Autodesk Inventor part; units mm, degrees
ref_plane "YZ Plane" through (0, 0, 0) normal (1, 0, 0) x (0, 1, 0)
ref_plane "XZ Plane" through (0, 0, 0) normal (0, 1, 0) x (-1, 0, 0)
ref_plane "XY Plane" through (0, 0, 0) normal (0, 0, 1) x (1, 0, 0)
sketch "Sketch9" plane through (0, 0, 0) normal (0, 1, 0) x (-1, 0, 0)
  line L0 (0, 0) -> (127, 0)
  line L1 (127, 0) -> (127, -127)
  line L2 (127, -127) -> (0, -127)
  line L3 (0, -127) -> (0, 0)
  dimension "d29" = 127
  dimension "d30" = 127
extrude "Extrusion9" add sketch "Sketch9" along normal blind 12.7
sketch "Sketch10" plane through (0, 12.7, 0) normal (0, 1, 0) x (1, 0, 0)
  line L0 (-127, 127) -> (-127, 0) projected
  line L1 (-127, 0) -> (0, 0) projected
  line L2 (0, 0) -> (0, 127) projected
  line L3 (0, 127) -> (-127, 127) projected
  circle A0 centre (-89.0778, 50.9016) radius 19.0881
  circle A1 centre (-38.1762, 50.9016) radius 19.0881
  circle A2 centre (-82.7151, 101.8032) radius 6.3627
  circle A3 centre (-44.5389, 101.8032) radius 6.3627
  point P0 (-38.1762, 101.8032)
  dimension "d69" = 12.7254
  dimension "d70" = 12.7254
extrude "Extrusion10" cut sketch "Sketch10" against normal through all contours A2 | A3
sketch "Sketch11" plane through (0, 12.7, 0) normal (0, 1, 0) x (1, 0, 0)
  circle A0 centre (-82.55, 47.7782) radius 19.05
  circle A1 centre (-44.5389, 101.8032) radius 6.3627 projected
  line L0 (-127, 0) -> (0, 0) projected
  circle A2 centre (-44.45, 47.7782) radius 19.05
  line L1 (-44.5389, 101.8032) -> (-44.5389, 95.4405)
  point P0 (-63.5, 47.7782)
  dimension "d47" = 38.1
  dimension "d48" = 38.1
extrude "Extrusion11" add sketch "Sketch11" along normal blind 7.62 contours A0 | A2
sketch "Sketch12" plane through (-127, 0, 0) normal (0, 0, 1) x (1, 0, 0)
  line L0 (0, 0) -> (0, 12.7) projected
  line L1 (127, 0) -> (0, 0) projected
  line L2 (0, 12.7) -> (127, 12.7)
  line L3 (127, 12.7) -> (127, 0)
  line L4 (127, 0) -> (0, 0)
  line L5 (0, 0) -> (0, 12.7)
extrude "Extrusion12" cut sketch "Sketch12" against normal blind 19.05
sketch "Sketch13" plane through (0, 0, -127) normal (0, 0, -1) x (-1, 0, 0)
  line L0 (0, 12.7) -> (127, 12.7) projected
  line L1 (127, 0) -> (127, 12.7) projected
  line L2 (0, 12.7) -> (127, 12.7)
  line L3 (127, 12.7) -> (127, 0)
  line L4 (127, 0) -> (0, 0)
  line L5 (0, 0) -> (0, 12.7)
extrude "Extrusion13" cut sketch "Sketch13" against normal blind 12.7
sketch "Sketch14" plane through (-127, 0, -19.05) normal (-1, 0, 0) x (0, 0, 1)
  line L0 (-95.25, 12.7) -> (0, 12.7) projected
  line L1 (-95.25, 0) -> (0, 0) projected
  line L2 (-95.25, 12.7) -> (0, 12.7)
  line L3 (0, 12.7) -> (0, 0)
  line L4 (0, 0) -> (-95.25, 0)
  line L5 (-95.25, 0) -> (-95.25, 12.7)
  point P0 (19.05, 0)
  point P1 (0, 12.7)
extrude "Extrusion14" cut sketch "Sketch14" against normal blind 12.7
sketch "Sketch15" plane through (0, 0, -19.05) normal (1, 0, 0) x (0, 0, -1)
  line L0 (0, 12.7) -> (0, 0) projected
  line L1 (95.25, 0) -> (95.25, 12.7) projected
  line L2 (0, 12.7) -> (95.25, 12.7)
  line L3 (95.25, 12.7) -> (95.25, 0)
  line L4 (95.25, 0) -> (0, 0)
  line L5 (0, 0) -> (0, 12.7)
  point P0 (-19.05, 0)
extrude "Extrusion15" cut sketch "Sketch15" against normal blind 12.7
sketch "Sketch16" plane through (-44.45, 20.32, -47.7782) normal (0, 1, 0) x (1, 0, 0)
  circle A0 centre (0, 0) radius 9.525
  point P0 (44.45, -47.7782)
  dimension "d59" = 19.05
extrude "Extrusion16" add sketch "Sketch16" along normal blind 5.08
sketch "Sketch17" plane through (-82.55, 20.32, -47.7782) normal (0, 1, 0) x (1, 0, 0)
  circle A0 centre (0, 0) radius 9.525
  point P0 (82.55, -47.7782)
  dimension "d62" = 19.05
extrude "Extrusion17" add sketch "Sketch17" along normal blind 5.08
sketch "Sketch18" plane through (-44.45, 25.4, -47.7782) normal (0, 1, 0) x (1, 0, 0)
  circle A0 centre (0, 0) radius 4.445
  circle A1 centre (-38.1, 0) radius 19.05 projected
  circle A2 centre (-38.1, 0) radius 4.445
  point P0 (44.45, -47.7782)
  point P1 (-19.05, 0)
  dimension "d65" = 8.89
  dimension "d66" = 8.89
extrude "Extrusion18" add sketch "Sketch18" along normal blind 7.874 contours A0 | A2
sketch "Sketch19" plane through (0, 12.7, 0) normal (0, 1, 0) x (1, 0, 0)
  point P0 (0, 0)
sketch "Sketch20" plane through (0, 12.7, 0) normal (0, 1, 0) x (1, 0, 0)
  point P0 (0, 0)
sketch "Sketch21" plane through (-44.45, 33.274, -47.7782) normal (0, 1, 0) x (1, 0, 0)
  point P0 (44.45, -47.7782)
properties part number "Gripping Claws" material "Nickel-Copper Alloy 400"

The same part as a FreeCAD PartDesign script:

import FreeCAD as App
import Part
import Sketcher
from FreeCAD import Vector
Q = App.Units.Quantity


def add_polygon(sketch, points):
    """Adds a closed chain of lines whose ends are joined by coincident constraints."""
    first, n = sketch.GeometryCount, len(points)
    for a, b in zip(points, points[1:] + points[:1]):
        sketch.addGeometry(Part.LineSegment(App.Vector(*a, 0), App.Vector(*b, 0)), False)
    for i in range(n):
        sketch.addConstraint(Sketcher.Constraint("Coincident", first + i, 2, first + (i + 1) % n, 1))

doc = App.newDocument("Part")
body = doc.addObject("PartDesign::Body", "Body")

# Sketch on XZ plane
sketch1 = body.newObject("Sketcher::SketchObject", "Sketch")
sketch1.AttachmentSupport = (doc.getObject("XZ_Plane"), [""])
sketch1.MapMode = "FlatFace"
add_polygon(sketch1, [(-127, 0), (0, 0), (0, -127), (-127, -127)])  # lines 0-3
sketch1.addConstraint([
    Sketcher.Constraint("Horizontal", 0),
    Sketcher.Constraint("Vertical", 1),
    Sketcher.Constraint("Horizontal", 2),
    Sketcher.Constraint("Vertical", 3),
    Sketcher.Constraint("Coincident", 0, 2, -1, 1),
    Sketcher.Constraint("Equal", 2, 1),
    Sketcher.Constraint("DistanceX", 0, 1, 0, 2, Q("5 in")),
])
pad1 = body.newObject("PartDesign::Pad", "Pad")
pad1.Profile = sketch1
pad1.Length = Q("0.5 in")
pad1.Reversed = True

# Sketch on XZ plane
sketch2 = body.newObject("Sketcher::SketchObject", "Sketch001")
sketch2.AttachmentSupport = (doc.getObject("XZ_Plane"), [""])
sketch2.MapMode = "FlatFace"
sketch2.AttachmentOffset = App.Placement(Vector(0, 0, -0.5 * 25.4), App.Rotation())
sketch2.addGeometry([
    Part.Circle(Vector(-83, -102, 0), Vector(0, 0, 1), 6),
    Part.Circle(Vector(-45, -102, 0), Vector(0, 0, 1), 6),
], False)
sketch2.addConstraint([
    Sketcher.Constraint("Equal", 0, 1),
    Sketcher.Constraint("Horizontal", 0, 3, 1, 3),
    Sketcher.Constraint("Diameter", 0, Q("0.501 in")),
    Sketcher.Constraint("DistanceY", 0, 3, -1, 1, Q("4.008 in")),
    Sketcher.Constraint("DistanceX", 0, 3, 1, 3, Q("1.503 in")),
    Sketcher.Constraint("DistanceX", 0, 3, -1, 1, Q("3.2565 in")),
])
pocket1 = body.newObject("PartDesign::Pocket", "Pocket")
pocket1.Profile = sketch2
pocket1.Type = "ThroughAll"
pocket1.Reversed = True

# Sketch on XZ plane
sketch3 = body.newObject("Sketcher::SketchObject", "Sketch002")
sketch3.AttachmentSupport = (doc.getObject("XZ_Plane"), [""])
sketch3.MapMode = "FlatFace"
sketch3.AttachmentOffset = App.Placement(Vector(0, 0, -0.5 * 25.4), App.Rotation())
sketch3.addGeometry([
    Part.Circle(Vector(-83, -48, 0), Vector(0, 0, 1), 19),
    Part.Circle(Vector(-44, -48, 0), Vector(0, 0, 1), 19),
], False)
sketch3.addConstraint([
    Sketcher.Constraint("Equal", 0, 1),
    Sketcher.Constraint("Horizontal", 0, 3, 1, 3),
    Sketcher.Constraint("Diameter", 0, Q("1.5 in")),
    Sketcher.Constraint("DistanceX", 0, 3, 1, 3, Q("1.5 in")),
    Sketcher.Constraint("DistanceX", 0, 3, -1, 1, Q("3.25 in")),
    Sketcher.Constraint("DistanceY", 0, 3, -1, 1, 47.7782),
])
pad2 = body.newObject("PartDesign::Pad", "Pad001")
pad2.Profile = sketch3
pad2.Length = Q("0.3 in")
pad2.Reversed = True

# Sketch on XY plane
sketch4 = body.newObject("Sketcher::SketchObject", "Sketch003")
sketch4.AttachmentSupport = (doc.getObject("XY_Plane"), [""])
sketch4.MapMode = "FlatFace"
add_polygon(sketch4, [(-127, 13), (-127, 0), (0, 0), (0, 13)])  # lines 0-3
sketch4.addConstraint([
    Sketcher.Constraint("Vertical", 0),
    Sketcher.Constraint("Horizontal", 1),
    Sketcher.Constraint("Vertical", 2),
    Sketcher.Constraint("Horizontal", 3),
    Sketcher.Constraint("Coincident", 1, 2, -1, 1),
    Sketcher.Constraint("DistanceX", 1, 1, 1, 2, Q("5 in")),
    Sketcher.Constraint("DistanceY", 0, 2, 0, 1, Q("0.5 in")),
])
pocket2 = body.newObject("PartDesign::Pocket", "Pocket001")
pocket2.Profile = sketch4
pocket2.Length = Q("0.75 in")

# Sketch on XY plane
sketch5 = body.newObject("Sketcher::SketchObject", "Sketch004")
sketch5.AttachmentSupport = (doc.getObject("XY_Plane"), [""])
sketch5.MapMode = "FlatFace"
sketch5.AttachmentOffset = App.Placement(Vector(0, 0, -5 * 25.4), App.Rotation())
add_polygon(sketch5, [(-127, 13), (0, 13), (0, 0), (-127, 0)])  # lines 0-3
sketch5.addConstraint([
    Sketcher.Constraint("Horizontal", 0),
    Sketcher.Constraint("Vertical", 1),
    Sketcher.Constraint("Horizontal", 2),
    Sketcher.Constraint("Vertical", 3),
    Sketcher.Constraint("Coincident", 1, 2, -1, 1),
    Sketcher.Constraint("DistanceX", 0, 1, 0, 2, Q("5 in")),
    Sketcher.Constraint("DistanceY", 1, 2, 1, 1, Q("0.5 in")),
])
pocket3 = body.newObject("PartDesign::Pocket", "Pocket002")
pocket3.Profile = sketch5
pocket3.Length = Q("0.5 in")
pocket3.Reversed = True

# Sketch on YZ plane
sketch6 = body.newObject("Sketcher::SketchObject", "Sketch005")
sketch6.AttachmentSupport = (doc.getObject("YZ_Plane"), [""])
sketch6.MapMode = "FlatFace"
sketch6.AttachmentOffset = App.Placement(Vector(0, 0, -5 * 25.4), App.Rotation())
add_polygon(sketch6, [(13, -19), (13, -114), (0, -114), (0, -19)])  # lines 0-3
sketch6.addConstraint([
    Sketcher.Constraint("Vertical", 0),
    Sketcher.Constraint("Horizontal", 1),
    Sketcher.Constraint("Vertical", 2),
    Sketcher.Constraint("Horizontal", 3),
    Sketcher.Constraint("PointOnObject", 1, 2, -2),
    Sketcher.Constraint("DistanceX", 1, 2, 1, 1, Q("0.5 in")),
    Sketcher.Constraint("DistanceY", 0, 2, 0, 1, Q("3.75 in")),
    Sketcher.Constraint("DistanceY", 0, 2, -1, 1, Q("4.5 in")),
])
pocket4 = body.newObject("PartDesign::Pocket", "Pocket003")
pocket4.Profile = sketch6
pocket4.Length = Q("0.5 in")
pocket4.Reversed = True

# Sketch on YZ plane
sketch7 = body.newObject("Sketcher::SketchObject", "Sketch006")
sketch7.AttachmentSupport = (doc.getObject("YZ_Plane"), [""])
sketch7.MapMode = "FlatFace"
add_polygon(sketch7, [(13, -114), (13, -19), (0, -19), (0, -114)])  # lines 0-3
sketch7.addConstraint([
    Sketcher.Constraint("Vertical", 0),
    Sketcher.Constraint("Horizontal", 1),
    Sketcher.Constraint("Vertical", 2),
    Sketcher.Constraint("Horizontal", 3),
    Sketcher.Constraint("PointOnObject", 1, 2, -2),
    Sketcher.Constraint("DistanceX", 1, 2, 1, 1, Q("0.5 in")),
    Sketcher.Constraint("DistanceY", 0, 1, 0, 2, Q("3.75 in")),
    Sketcher.Constraint("DistanceY", 2, 2, -1, 1, Q("4.5 in")),
])
pocket5 = body.newObject("PartDesign::Pocket", "Pocket004")
pocket5.Profile = sketch7
pocket5.Length = Q("0.5 in")

# Sketch on XZ plane
sketch8 = body.newObject("Sketcher::SketchObject", "Sketch007")
sketch8.AttachmentSupport = (doc.getObject("XZ_Plane"), [""])
sketch8.MapMode = "FlatFace"
sketch8.AttachmentOffset = App.Placement(Vector(0, 0, -0.8 * 25.4), App.Rotation())
sketch8.addGeometry(Part.Circle(Vector(-44, -48, 0), Vector(0, 0, 1), 10), False)
sketch8.addConstraint([
    Sketcher.Constraint("Diameter", 0, Q("0.75 in")),
    Sketcher.Constraint("DistanceX", 0, 3, -1, 1, Q("1.75 in")),
    Sketcher.Constraint("DistanceY", 0, 3, -1, 1, 47.7782),
])
pad3 = body.newObject("PartDesign::Pad", "Pad002")
pad3.Profile = sketch8
pad3.Length = Q("0.2 in")
pad3.Reversed = True

# Sketch on XZ plane
sketch9 = body.newObject("Sketcher::SketchObject", "Sketch008")
sketch9.AttachmentSupport = (doc.getObject("XZ_Plane"), [""])
sketch9.MapMode = "FlatFace"
sketch9.AttachmentOffset = App.Placement(Vector(0, 0, -0.8 * 25.4), App.Rotation())
sketch9.addGeometry(Part.Circle(Vector(-83, -48, 0), Vector(0, 0, 1), 10), False)
sketch9.addConstraint([
    Sketcher.Constraint("Diameter", 0, Q("0.75 in")),
    Sketcher.Constraint("DistanceX", 0, 3, -1, 1, Q("3.25 in")),
    Sketcher.Constraint("DistanceY", 0, 3, -1, 1, 47.7782),
])
pad4 = body.newObject("PartDesign::Pad", "Pad003")
pad4.Profile = sketch9
pad4.Length = Q("0.2 in")
pad4.Reversed = True

# Sketch on XZ plane
sketch10 = body.newObject("Sketcher::SketchObject", "Sketch009")
sketch10.AttachmentSupport = (doc.getObject("XZ_Plane"), [""])
sketch10.MapMode = "FlatFace"
sketch10.AttachmentOffset = App.Placement(Vector(0, 0, -1 * 25.4), App.Rotation())
sketch10.addGeometry([
    Part.Circle(Vector(-44.5, -47.8, 0), Vector(0, 0, 1), 4.4),
    Part.Circle(Vector(-82.5, -47.8, 0), Vector(0, 0, 1), 4.4),
], False)
sketch10.addConstraint([
    Sketcher.Constraint("Equal", 0, 1),
    Sketcher.Constraint("Horizontal", 0, 3, 1, 3),
    Sketcher.Constraint("Diameter", 0, Q("0.35 in")),
    Sketcher.Constraint("DistanceX", 1, 3, 0, 3, Q("1.5 in")),
    Sketcher.Constraint("DistanceX", 0, 3, -1, 1, Q("1.75 in")),
    Sketcher.Constraint("DistanceY", 0, 3, -1, 1, 47.7782),
])
pad5 = body.newObject("PartDesign::Pad", "Pad004")
pad5.Profile = sketch10
pad5.Length = Q("0.31 in")
pad5.Reversed = True

doc.recompute()
